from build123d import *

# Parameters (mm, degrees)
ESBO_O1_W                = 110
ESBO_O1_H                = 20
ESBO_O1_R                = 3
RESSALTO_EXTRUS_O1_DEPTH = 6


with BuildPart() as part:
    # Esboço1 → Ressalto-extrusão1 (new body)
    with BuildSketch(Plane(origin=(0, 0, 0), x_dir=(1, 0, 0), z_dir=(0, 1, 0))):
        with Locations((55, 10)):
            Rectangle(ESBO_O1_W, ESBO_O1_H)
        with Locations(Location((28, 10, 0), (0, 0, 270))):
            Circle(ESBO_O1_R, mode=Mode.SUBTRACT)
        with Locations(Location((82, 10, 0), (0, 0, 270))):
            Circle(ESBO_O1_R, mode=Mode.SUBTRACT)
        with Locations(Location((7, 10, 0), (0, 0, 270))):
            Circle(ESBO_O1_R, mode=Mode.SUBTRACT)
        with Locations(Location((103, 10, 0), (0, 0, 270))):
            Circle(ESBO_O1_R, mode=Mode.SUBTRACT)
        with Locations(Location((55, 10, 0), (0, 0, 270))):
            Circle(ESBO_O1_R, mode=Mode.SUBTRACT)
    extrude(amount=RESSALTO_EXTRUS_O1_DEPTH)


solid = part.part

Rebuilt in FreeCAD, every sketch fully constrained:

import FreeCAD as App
import Part
import Sketcher
from FreeCAD import Vector
Q = App.Units.Quantity

doc = App.newDocument("Part")
body = doc.addObject("PartDesign::Body", "Body")

# Sketch on XZ plane
sketch1 = doc.addObject("Sketcher::SketchObject", "Sketch")
body.addObject(sketch1)
sketch1.AttachmentSupport = (doc.XZ_Plane, [""])
sketch1.MapMode = "FlatFace"
sketch1.addGeometry(Part.LineSegment(Vector(0, -20, 0), Vector(0, 0, 0)), False)
sketch1.addGeometry(Part.LineSegment(Vector(0, 0, 0), Vector(110, 0, 0)), False)
sketch1.addGeometry(Part.LineSegment(Vector(110, 0, 0), Vector(110, -20, 0)), False)
sketch1.addGeometry(Part.LineSegment(Vector(110, -20, 0), Vector(0, -20, 0)), False)
sketch1.addGeometry(Part.Circle(Vector(7, -10, 0), Vector(0, 0, 1), 3), False)
sketch1.addGeometry(Part.Circle(Vector(28, -10, 0), Vector(0, 0, 1), 3), False)
sketch1.addGeometry(Part.Circle(Vector(55, -10, 0), Vector(0, 0, 1), 3), False)
sketch1.addGeometry(Part.Circle(Vector(82, -10, 0), Vector(0, 0, 1), 3), False)
sketch1.addGeometry(Part.Circle(Vector(103, -10, 0), Vector(0, 0, 1), 3), False)
sketch1.addConstraint(Sketcher.Constraint("Coincident", 0, 2, 1, 1))
sketch1.addConstraint(Sketcher.Constraint("Coincident", 1, 2, 2, 1))
sketch1.addConstraint(Sketcher.Constraint("Coincident", 2, 2, 3, 1))
sketch1.addConstraint(Sketcher.Constraint("Coincident", 3, 2, 0, 1))
sketch1.addConstraint(Sketcher.Constraint("Vertical", 0))
sketch1.addConstraint(Sketcher.Constraint("Horizontal", 1))
sketch1.addConstraint(Sketcher.Constraint("Vertical", 2))
sketch1.addConstraint(Sketcher.Constraint("Horizontal", 3))
sketch1.addConstraint(Sketcher.Constraint("Coincident", 0, 2, -1, 1))
sketch1.addConstraint(Sketcher.Constraint("Equal", 4, 5))
sketch1.addConstraint(Sketcher.Constraint("Equal", 5, 6))
sketch1.addConstraint(Sketcher.Constraint("Equal", 6, 7))
sketch1.addConstraint(Sketcher.Constraint("Equal", 7, 8))
sketch1.addConstraint(Sketcher.Constraint("Horizontal", 4, 3, 5, 3))
sketch1.addConstraint(Sketcher.Constraint("Horizontal", 5, 3, 6, 3))
sketch1.addConstraint(Sketcher.Constraint("Horizontal", 6, 3, 7, 3))
sketch1.addConstraint(Sketcher.Constraint("Horizontal", 7, 3, 8, 3))
sketch1.addConstraint(Sketcher.Constraint("Diameter", 4, Q("6 mm")))
sketch1.addConstraint(Sketcher.Constraint("DistanceX", 1, 1, 1, 2, Q("110 mm")))
sketch1.addConstraint(Sketcher.Constraint("DistanceY", 0, 1, 0, 2, Q("20 mm")))
sketch1.addConstraint(Sketcher.Constraint("DistanceX", -1, 1, 4, 3, Q("7 mm")))
sketch1.addConstraint(Sketcher.Constraint("DistanceY", 4, 3, -1, 1, Q("10 mm")))
sketch1.addConstraint(Sketcher.Constraint("DistanceX", -1, 1, 5, 3, Q("28 mm")))
sketch1.addConstraint(Sketcher.Constraint("DistanceX", -1, 1, 6, 3, Q("55 mm")))
sketch1.addConstraint(Sketcher.Constraint("DistanceX", -1, 1, 7, 3, Q("82 mm")))
sketch1.addConstraint(Sketcher.Constraint("DistanceX", -1, 1, 8, 3, Q("103 mm")))
pad1 = doc.addObject("PartDesign::Pad", "Pad")
body.addObject(pad1)
pad1.Profile = sketch1
pad1.Length = 6
pad1.Reversed = True

doc.recompute()
